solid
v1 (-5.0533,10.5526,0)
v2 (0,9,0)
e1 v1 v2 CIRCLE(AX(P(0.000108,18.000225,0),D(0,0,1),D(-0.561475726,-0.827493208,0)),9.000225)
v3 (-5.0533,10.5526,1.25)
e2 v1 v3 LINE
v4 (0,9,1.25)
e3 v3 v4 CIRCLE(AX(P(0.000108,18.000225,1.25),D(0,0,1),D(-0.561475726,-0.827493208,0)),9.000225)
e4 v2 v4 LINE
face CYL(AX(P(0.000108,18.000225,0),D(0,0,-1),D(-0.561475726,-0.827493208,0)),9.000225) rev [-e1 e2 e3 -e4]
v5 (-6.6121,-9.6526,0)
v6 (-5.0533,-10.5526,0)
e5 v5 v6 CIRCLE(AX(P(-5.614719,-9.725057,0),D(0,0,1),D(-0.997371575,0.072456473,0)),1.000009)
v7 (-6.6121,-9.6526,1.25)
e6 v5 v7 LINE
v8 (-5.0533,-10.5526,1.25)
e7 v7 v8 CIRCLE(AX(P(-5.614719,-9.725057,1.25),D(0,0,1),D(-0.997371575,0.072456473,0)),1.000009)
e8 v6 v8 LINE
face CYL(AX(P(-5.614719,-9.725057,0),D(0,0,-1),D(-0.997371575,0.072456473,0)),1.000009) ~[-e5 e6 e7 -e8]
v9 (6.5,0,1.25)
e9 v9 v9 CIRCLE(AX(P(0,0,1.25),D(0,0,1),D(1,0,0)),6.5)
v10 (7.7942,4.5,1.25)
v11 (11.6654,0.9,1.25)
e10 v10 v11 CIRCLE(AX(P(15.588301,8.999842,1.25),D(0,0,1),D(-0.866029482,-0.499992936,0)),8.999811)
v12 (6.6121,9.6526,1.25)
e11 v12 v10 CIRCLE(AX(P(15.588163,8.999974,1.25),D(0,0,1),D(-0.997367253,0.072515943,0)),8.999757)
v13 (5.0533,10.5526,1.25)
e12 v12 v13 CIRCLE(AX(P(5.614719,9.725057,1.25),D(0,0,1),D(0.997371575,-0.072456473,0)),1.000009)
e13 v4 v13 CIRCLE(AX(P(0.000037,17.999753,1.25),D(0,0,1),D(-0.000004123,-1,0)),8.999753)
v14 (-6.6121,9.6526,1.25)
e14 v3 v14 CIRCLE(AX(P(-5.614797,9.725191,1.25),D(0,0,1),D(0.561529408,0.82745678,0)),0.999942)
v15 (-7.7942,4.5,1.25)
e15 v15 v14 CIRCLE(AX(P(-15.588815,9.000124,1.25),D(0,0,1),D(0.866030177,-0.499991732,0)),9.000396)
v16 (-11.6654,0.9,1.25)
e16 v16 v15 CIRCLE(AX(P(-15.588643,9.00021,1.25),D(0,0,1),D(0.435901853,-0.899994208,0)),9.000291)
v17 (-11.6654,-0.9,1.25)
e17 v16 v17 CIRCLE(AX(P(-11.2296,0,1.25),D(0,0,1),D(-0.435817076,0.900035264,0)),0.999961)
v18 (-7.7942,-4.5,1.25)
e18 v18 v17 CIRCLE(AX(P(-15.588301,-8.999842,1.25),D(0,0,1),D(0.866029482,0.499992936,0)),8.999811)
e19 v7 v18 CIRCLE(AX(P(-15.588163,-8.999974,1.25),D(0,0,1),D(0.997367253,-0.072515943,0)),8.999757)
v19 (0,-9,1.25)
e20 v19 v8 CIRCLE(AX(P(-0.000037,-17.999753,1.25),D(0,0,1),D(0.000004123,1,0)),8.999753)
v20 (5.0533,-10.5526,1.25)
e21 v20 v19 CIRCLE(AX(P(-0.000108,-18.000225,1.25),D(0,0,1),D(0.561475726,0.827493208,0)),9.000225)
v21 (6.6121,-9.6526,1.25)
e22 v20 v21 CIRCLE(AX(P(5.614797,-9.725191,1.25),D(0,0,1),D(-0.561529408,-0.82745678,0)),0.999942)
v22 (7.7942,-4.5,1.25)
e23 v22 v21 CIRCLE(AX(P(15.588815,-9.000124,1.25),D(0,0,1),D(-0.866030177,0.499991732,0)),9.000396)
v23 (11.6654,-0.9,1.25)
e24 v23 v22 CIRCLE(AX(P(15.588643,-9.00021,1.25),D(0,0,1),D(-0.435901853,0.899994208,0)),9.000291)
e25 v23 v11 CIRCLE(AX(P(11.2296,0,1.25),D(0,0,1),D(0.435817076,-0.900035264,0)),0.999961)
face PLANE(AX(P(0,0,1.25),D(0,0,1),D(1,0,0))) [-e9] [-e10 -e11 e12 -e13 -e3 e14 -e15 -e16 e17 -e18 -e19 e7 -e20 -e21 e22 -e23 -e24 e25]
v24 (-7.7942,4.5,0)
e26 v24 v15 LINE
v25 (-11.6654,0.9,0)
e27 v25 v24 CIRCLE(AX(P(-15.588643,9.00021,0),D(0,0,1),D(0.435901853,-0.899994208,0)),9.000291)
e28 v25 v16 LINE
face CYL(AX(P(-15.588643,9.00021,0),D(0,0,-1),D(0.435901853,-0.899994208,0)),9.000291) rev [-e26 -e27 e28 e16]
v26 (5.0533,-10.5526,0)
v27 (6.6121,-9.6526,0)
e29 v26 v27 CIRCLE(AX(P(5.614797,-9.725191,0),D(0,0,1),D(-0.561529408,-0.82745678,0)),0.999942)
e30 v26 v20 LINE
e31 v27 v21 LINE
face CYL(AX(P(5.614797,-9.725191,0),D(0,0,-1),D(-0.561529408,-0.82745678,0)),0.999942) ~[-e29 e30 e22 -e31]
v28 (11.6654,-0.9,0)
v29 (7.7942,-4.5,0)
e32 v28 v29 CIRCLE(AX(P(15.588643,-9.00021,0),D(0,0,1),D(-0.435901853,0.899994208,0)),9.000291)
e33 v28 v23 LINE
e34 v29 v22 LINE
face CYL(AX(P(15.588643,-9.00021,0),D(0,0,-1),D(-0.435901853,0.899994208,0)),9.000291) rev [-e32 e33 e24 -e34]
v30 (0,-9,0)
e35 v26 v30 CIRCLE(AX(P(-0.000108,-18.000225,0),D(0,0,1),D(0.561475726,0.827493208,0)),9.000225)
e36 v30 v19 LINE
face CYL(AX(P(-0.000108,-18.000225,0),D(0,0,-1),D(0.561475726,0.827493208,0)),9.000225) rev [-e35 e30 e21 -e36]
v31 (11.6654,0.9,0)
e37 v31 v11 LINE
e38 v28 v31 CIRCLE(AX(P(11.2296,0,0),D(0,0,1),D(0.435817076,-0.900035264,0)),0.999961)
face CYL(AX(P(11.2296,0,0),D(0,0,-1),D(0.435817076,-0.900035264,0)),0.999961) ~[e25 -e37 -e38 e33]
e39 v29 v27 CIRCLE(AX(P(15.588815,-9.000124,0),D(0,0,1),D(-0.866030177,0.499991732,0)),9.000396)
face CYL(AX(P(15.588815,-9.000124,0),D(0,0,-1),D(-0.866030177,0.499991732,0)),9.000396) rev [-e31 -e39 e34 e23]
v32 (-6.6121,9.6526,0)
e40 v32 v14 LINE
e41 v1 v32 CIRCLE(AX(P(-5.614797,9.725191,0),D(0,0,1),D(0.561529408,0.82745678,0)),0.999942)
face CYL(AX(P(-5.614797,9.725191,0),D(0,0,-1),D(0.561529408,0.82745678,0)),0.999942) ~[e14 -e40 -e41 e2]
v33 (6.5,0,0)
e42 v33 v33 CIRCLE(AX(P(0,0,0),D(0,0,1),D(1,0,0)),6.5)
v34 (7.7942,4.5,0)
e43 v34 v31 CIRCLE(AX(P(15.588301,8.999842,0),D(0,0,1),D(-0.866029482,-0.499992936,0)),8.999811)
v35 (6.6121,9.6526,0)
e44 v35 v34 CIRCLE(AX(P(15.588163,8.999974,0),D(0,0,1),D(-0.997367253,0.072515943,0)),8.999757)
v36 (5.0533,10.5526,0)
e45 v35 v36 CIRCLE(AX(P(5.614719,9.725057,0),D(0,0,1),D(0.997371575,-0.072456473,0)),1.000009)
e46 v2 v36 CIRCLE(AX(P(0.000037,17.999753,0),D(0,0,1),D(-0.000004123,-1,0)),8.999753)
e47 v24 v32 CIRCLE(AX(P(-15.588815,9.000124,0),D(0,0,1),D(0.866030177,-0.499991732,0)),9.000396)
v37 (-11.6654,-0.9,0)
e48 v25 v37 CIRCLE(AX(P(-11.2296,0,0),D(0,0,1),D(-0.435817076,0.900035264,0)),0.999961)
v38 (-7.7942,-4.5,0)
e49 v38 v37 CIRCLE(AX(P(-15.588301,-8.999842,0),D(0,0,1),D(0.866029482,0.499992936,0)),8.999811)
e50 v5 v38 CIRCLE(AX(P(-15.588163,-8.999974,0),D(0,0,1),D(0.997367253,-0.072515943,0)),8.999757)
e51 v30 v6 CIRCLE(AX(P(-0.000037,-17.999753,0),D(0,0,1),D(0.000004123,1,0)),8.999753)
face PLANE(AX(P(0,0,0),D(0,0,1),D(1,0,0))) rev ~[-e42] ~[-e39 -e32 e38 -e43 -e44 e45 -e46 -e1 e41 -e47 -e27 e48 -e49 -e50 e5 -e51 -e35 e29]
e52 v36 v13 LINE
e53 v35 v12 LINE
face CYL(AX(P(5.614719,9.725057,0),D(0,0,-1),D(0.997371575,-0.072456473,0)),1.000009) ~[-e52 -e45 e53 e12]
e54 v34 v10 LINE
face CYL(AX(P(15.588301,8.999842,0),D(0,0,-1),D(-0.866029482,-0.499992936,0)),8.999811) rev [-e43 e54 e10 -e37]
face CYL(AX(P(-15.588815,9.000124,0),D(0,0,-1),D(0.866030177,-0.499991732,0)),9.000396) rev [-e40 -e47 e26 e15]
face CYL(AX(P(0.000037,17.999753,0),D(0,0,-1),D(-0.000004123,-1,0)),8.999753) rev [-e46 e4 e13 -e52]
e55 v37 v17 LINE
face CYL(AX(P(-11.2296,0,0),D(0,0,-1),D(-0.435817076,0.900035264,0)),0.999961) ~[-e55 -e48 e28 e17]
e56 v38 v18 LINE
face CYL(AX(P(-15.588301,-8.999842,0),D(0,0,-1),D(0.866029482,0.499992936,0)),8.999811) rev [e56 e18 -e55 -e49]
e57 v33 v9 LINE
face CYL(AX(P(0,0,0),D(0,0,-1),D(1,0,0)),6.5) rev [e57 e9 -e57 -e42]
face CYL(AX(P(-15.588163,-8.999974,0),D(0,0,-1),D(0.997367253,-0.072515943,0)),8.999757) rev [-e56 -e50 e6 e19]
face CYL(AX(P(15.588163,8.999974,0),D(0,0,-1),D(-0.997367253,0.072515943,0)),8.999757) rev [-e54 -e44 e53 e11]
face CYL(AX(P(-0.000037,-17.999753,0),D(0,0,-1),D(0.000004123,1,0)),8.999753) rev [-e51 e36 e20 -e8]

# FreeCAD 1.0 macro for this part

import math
import FreeCAD as App
import Part
import Sketcher

V = App.Vector

doc = App.newDocument("Part")
body = doc.addObject("PartDesign::Body", "Body")

sketch1 = doc.addObject("Sketcher::SketchObject", "Sketch")
body.addObject(sketch1)
sketch1.AttachmentSupport = (doc.XY_Plane, [""])
sketch1.MapMode = "FlatFace"
sketch1.addGeometry(Part.ArcOfCircle(Part.Circle(V(0, 18, 0), V(0, 0, 1), 9), math.radians(-90), math.radians(-56)), False)
sketch1.addGeometry(Part.ArcOfCircle(Part.Circle(V(0, 18, 0), V(0, 0, 1), 9), math.radians(-124), math.radians(-90)), False)
sketch1.addGeometry(Part.ArcOfCircle(Part.Circle(V(-5.6, 9.7, 0), V(0, 0, 1), 1), math.radians(56), math.radians(184)), False)
sketch1.addGeometry(Part.ArcOfCircle(Part.Circle(V(-15.6, 9, 0), V(0, 0, 1), 9), math.radians(-30), math.radians(4)), False)
sketch1.addGeometry(Part.ArcOfCircle(Part.Circle(V(-15.6, 9, 0), V(0, 0, 1), 9), math.radians(-64), math.radians(-30)), False)
sketch1.addGeometry(Part.ArcOfCircle(Part.Circle(V(-11.2, 0, 0), V(0, 0, 1), 1), math.radians(116), math.radians(244)), False)
sketch1.addGeometry(Part.ArcOfCircle(Part.Circle(V(-15.6, -9, 0), V(0, 0, 1), 9), math.radians(30), math.radians(64)), False)
sketch1.addGeometry(Part.ArcOfCircle(Part.Circle(V(-15.6, -9, 0), V(0, 0, 1), 9), math.radians(-4), math.radians(30)), False)
sketch1.addGeometry(Part.ArcOfCircle(Part.Circle(V(-5.6, -9.7, 0), V(0, 0, 1), 1), math.radians(176), math.radians(304)), False)
sketch1.addGeometry(Part.ArcOfCircle(Part.Circle(V(0, -18, 0), V(0, 0, 1), 9), math.radians(90), math.radians(124)), False)
sketch1.addGeometry(Part.ArcOfCircle(Part.Circle(V(0, -18, 0), V(0, 0, 1), 9), math.radians(56), math.radians(90)), False)
sketch1.addGeometry(Part.ArcOfCircle(Part.Circle(V(5.6, -9.7, 0), V(0, 0, 1), 1), math.radians(-124), math.radians(4)), False)
sketch1.addGeometry(Part.ArcOfCircle(Part.Circle(V(15.6, -9, 0), V(0, 0, 1), 9), math.radians(150), math.radians(184)), False)
sketch1.addGeometry(Part.ArcOfCircle(Part.Circle(V(15.6, -9, 0), V(0, 0, 1), 9), math.radians(116), math.radians(150)), False)
sketch1.addGeometry(Part.ArcOfCircle(Part.Circle(V(11.2, 0, 0), V(0, 0, 1), 1), math.radians(-64), math.radians(64)), False)
sketch1.addGeometry(Part.ArcOfCircle(Part.Circle(V(15.6, 9, 0), V(0, 0, 1), 9), math.radians(-150), math.radians(-116)), False)
sketch1.addGeometry(Part.ArcOfCircle(Part.Circle(V(15.6, 9, 0), V(0, 0, 1), 9), math.radians(176), math.radians(210)), False)
sketch1.addGeometry(Part.ArcOfCircle(Part.Circle(V(5.6, 9.7, 0), V(0, 0, 1), 1), math.radians(-4), math.radians(124)), False)
sketch1.addGeometry(Part.Circle(V(0, 0, 0), V(0, 0, 1), 6.5), False)
sketch1.addConstraint(Sketcher.Constraint("Tangent", 0, 1, 1, 2))
sketch1.addConstraint(Sketcher.Constraint("Tangent", 1, 1, 2, 1))
sketch1.addConstraint(Sketcher.Constraint("Tangent", 2, 2, 3, 2))
sketch1.addConstraint(Sketcher.Constraint("Tangent", 3, 1, 4, 2))
sketch1.addConstraint(Sketcher.Constraint("Tangent", 4, 1, 5, 1))
sketch1.addConstraint(Sketcher.Constraint("Tangent", 5, 2, 6, 2))
sketch1.addConstraint(Sketcher.Constraint("Tangent", 6, 1, 7, 2))
sketch1.addConstraint(Sketcher.Constraint("Tangent", 7, 1, 8, 1))
sketch1.addConstraint(Sketcher.Constraint("Tangent", 8, 2, 9, 2))
sketch1.addConstraint(Sketcher.Constraint("Tangent", 9, 1, 10, 2))
sketch1.addConstraint(Sketcher.Constraint("Tangent", 10, 1, 11, 1))
sketch1.addConstraint(Sketcher.Constraint("Tangent", 11, 2, 12, 2))
sketch1.addConstraint(Sketcher.Constraint("Tangent", 12, 1, 13, 2))
sketch1.addConstraint(Sketcher.Constraint("Tangent", 13, 1, 14, 1))
sketch1.addConstraint(Sketcher.Constraint("Tangent", 14, 2, 15, 2))
sketch1.addConstraint(Sketcher.Constraint("Tangent", 15, 1, 16, 2))
sketch1.addConstraint(Sketcher.Constraint("Tangent", 16, 1, 17, 1))
sketch1.addConstraint(Sketcher.Constraint("Tangent", 17, 2, 0, 2))
sketch1.addConstraint(Sketcher.Constraint("Coincident", 18, 3, -1, 1))
sketch1.addConstraint(Sketcher.Constraint("Equal", 0, 1))
sketch1.addConstraint(Sketcher.Constraint("Equal", 1, 3))
sketch1.addConstraint(Sketcher.Constraint("Equal", 3, 4))
sketch1.addConstraint(Sketcher.Constraint("Equal", 2, 5))
sketch1.addConstraint(Sketcher.Constraint("Equal", 4, 6))
sketch1.addConstraint(Sketcher.Constraint("Equal", 6, 7))
sketch1.addConstraint(Sketcher.Constraint("Equal", 5, 8))
sketch1.addConstraint(Sketcher.Constraint("Equal", 7, 9))
sketch1.addConstraint(Sketcher.Constraint("Equal", 9, 10))
sketch1.addConstraint(Sketcher.Constraint("Equal", 8, 11))
sketch1.addConstraint(Sketcher.Constraint("Equal", 10, 12))
sketch1.addConstraint(Sketcher.Constraint("Equal", 12, 13))
sketch1.addConstraint(Sketcher.Constraint("Equal", 11, 14))
sketch1.addConstraint(Sketcher.Constraint("Equal", 13, 15))
sketch1.addConstraint(Sketcher.Constraint("Equal", 15, 16))
sketch1.addConstraint(Sketcher.Constraint("Equal", 14, 17))
sketch1.addConstraint(Sketcher.Constraint("Symmetric", 0, 3, 9, 3, -1, 1))
sketch1.addConstraint(Sketcher.Constraint("Symmetric", 3, 3, 12, 3, -1, 1))
sketch1.addConstraint(Sketcher.Constraint("Symmetric", 6, 3, 15, 3, -1, 1))
sketch1.addConstraint(Sketcher.Constraint("Symmetric", 8, 3, 11, 3, -2))
sketch1.addConstraint(Sketcher.Constraint("Symmetric", 6, 1, 12, 1, -2))
sketch1.addConstraint(Sketcher.Constraint("PointOnObject", 0, 1, -2))
sketch1.addConstraint(Sketcher.Constraint("PointOnObject", 9, 1, -2))
sketch1.addConstraint(Sketcher.Constraint("Horizontal", 16, 3, 0, 1))
sketch1.addConstraint(Sketcher.Constraint("Horizontal", 3, 1, 15, 1))
sketch1.addConstraint(Sketcher.Constraint("Vertical", 3, 1, 6, 1))
sketch1.addConstraint(Sketcher.Constraint("Diameter", 18, 13.0))
sketch1.addConstraint(Sketcher.Constraint("Radius", 0, 9.0))
sketch1.addConstraint(Sketcher.Constraint("Radius", 2, 1.0))
sketch1.addConstraint(Sketcher.Constraint("DistanceY", -1, 1, 0, 3, 18.0))
sketch1.addConstraint(Sketcher.Constraint("DistanceY", -1, 1, 3, 1, 4.5))
sketch1.addConstraint(Sketcher.Constraint("DistanceY", -1, 1, 2, 3, 9.725))
pad1 = doc.addObject("PartDesign::Pad", "Pad")
body.addObject(pad1)
pad1.Profile = sketch1
pad1.Length = 1.25

doc.recompute()
